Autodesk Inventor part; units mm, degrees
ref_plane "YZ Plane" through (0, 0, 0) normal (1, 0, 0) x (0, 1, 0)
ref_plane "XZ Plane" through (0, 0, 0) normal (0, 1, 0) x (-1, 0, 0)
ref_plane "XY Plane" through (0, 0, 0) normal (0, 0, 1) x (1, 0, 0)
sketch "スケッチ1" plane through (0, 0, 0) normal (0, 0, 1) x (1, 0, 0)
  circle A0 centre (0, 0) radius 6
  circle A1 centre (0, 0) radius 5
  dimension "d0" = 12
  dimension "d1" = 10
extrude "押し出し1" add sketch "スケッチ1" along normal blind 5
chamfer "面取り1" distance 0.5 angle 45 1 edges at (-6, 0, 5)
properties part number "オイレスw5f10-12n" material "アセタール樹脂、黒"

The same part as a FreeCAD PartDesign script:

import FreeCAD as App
import Part
import Sketcher
from FreeCAD import Vector
Q = App.Units.Quantity


def edges_at(feature, points):
    """Names of the edges that pass closest to the given points."""
    edges = feature.Shape.Edges
    near = lambda p: min(range(len(edges)), key=lambda i: edges[i].distToShape(Part.Vertex(*p))[0])
    return sorted({f"Edge{near(p) + 1}" for p in points})

doc = App.newDocument("Part")
body = doc.addObject("PartDesign::Body", "Body")

sketch1 = body.newObject("Sketcher::SketchObject", "Sketch")
sketch1.AttachmentSupport = (doc.getObject("XY_Plane"), [""])
sketch1.MapMode = "FlatFace"
sketch1.addGeometry(Part.Circle(Vector(0, 0, 0), Vector(0, 0, 1), 6), False)
sketch1.addGeometry(Part.Circle(Vector(0, 0, 0), Vector(0, 0, 1), 5), False)
sketch1.addConstraint(Sketcher.Constraint("Coincident", 0, 3, -1, 1))
sketch1.addConstraint(Sketcher.Constraint("Coincident", 1, 3, -1, 1))
sketch1.addConstraint(Sketcher.Constraint("Diameter", 0, Q("12 mm")))
sketch1.addConstraint(Sketcher.Constraint("Diameter", 1, Q("10 mm")))
pad1 = body.newObject("PartDesign::Pad", "Pad")
pad1.Profile = sketch1
pad1.Length = 5
doc.recompute()

chamfer = body.newObject("PartDesign::Chamfer", "Chamfer")
chamfer.Base = (pad1, edges_at(pad1, [(-6, 0, 5)]))
chamfer.Size = 0.5

doc.recompute()
